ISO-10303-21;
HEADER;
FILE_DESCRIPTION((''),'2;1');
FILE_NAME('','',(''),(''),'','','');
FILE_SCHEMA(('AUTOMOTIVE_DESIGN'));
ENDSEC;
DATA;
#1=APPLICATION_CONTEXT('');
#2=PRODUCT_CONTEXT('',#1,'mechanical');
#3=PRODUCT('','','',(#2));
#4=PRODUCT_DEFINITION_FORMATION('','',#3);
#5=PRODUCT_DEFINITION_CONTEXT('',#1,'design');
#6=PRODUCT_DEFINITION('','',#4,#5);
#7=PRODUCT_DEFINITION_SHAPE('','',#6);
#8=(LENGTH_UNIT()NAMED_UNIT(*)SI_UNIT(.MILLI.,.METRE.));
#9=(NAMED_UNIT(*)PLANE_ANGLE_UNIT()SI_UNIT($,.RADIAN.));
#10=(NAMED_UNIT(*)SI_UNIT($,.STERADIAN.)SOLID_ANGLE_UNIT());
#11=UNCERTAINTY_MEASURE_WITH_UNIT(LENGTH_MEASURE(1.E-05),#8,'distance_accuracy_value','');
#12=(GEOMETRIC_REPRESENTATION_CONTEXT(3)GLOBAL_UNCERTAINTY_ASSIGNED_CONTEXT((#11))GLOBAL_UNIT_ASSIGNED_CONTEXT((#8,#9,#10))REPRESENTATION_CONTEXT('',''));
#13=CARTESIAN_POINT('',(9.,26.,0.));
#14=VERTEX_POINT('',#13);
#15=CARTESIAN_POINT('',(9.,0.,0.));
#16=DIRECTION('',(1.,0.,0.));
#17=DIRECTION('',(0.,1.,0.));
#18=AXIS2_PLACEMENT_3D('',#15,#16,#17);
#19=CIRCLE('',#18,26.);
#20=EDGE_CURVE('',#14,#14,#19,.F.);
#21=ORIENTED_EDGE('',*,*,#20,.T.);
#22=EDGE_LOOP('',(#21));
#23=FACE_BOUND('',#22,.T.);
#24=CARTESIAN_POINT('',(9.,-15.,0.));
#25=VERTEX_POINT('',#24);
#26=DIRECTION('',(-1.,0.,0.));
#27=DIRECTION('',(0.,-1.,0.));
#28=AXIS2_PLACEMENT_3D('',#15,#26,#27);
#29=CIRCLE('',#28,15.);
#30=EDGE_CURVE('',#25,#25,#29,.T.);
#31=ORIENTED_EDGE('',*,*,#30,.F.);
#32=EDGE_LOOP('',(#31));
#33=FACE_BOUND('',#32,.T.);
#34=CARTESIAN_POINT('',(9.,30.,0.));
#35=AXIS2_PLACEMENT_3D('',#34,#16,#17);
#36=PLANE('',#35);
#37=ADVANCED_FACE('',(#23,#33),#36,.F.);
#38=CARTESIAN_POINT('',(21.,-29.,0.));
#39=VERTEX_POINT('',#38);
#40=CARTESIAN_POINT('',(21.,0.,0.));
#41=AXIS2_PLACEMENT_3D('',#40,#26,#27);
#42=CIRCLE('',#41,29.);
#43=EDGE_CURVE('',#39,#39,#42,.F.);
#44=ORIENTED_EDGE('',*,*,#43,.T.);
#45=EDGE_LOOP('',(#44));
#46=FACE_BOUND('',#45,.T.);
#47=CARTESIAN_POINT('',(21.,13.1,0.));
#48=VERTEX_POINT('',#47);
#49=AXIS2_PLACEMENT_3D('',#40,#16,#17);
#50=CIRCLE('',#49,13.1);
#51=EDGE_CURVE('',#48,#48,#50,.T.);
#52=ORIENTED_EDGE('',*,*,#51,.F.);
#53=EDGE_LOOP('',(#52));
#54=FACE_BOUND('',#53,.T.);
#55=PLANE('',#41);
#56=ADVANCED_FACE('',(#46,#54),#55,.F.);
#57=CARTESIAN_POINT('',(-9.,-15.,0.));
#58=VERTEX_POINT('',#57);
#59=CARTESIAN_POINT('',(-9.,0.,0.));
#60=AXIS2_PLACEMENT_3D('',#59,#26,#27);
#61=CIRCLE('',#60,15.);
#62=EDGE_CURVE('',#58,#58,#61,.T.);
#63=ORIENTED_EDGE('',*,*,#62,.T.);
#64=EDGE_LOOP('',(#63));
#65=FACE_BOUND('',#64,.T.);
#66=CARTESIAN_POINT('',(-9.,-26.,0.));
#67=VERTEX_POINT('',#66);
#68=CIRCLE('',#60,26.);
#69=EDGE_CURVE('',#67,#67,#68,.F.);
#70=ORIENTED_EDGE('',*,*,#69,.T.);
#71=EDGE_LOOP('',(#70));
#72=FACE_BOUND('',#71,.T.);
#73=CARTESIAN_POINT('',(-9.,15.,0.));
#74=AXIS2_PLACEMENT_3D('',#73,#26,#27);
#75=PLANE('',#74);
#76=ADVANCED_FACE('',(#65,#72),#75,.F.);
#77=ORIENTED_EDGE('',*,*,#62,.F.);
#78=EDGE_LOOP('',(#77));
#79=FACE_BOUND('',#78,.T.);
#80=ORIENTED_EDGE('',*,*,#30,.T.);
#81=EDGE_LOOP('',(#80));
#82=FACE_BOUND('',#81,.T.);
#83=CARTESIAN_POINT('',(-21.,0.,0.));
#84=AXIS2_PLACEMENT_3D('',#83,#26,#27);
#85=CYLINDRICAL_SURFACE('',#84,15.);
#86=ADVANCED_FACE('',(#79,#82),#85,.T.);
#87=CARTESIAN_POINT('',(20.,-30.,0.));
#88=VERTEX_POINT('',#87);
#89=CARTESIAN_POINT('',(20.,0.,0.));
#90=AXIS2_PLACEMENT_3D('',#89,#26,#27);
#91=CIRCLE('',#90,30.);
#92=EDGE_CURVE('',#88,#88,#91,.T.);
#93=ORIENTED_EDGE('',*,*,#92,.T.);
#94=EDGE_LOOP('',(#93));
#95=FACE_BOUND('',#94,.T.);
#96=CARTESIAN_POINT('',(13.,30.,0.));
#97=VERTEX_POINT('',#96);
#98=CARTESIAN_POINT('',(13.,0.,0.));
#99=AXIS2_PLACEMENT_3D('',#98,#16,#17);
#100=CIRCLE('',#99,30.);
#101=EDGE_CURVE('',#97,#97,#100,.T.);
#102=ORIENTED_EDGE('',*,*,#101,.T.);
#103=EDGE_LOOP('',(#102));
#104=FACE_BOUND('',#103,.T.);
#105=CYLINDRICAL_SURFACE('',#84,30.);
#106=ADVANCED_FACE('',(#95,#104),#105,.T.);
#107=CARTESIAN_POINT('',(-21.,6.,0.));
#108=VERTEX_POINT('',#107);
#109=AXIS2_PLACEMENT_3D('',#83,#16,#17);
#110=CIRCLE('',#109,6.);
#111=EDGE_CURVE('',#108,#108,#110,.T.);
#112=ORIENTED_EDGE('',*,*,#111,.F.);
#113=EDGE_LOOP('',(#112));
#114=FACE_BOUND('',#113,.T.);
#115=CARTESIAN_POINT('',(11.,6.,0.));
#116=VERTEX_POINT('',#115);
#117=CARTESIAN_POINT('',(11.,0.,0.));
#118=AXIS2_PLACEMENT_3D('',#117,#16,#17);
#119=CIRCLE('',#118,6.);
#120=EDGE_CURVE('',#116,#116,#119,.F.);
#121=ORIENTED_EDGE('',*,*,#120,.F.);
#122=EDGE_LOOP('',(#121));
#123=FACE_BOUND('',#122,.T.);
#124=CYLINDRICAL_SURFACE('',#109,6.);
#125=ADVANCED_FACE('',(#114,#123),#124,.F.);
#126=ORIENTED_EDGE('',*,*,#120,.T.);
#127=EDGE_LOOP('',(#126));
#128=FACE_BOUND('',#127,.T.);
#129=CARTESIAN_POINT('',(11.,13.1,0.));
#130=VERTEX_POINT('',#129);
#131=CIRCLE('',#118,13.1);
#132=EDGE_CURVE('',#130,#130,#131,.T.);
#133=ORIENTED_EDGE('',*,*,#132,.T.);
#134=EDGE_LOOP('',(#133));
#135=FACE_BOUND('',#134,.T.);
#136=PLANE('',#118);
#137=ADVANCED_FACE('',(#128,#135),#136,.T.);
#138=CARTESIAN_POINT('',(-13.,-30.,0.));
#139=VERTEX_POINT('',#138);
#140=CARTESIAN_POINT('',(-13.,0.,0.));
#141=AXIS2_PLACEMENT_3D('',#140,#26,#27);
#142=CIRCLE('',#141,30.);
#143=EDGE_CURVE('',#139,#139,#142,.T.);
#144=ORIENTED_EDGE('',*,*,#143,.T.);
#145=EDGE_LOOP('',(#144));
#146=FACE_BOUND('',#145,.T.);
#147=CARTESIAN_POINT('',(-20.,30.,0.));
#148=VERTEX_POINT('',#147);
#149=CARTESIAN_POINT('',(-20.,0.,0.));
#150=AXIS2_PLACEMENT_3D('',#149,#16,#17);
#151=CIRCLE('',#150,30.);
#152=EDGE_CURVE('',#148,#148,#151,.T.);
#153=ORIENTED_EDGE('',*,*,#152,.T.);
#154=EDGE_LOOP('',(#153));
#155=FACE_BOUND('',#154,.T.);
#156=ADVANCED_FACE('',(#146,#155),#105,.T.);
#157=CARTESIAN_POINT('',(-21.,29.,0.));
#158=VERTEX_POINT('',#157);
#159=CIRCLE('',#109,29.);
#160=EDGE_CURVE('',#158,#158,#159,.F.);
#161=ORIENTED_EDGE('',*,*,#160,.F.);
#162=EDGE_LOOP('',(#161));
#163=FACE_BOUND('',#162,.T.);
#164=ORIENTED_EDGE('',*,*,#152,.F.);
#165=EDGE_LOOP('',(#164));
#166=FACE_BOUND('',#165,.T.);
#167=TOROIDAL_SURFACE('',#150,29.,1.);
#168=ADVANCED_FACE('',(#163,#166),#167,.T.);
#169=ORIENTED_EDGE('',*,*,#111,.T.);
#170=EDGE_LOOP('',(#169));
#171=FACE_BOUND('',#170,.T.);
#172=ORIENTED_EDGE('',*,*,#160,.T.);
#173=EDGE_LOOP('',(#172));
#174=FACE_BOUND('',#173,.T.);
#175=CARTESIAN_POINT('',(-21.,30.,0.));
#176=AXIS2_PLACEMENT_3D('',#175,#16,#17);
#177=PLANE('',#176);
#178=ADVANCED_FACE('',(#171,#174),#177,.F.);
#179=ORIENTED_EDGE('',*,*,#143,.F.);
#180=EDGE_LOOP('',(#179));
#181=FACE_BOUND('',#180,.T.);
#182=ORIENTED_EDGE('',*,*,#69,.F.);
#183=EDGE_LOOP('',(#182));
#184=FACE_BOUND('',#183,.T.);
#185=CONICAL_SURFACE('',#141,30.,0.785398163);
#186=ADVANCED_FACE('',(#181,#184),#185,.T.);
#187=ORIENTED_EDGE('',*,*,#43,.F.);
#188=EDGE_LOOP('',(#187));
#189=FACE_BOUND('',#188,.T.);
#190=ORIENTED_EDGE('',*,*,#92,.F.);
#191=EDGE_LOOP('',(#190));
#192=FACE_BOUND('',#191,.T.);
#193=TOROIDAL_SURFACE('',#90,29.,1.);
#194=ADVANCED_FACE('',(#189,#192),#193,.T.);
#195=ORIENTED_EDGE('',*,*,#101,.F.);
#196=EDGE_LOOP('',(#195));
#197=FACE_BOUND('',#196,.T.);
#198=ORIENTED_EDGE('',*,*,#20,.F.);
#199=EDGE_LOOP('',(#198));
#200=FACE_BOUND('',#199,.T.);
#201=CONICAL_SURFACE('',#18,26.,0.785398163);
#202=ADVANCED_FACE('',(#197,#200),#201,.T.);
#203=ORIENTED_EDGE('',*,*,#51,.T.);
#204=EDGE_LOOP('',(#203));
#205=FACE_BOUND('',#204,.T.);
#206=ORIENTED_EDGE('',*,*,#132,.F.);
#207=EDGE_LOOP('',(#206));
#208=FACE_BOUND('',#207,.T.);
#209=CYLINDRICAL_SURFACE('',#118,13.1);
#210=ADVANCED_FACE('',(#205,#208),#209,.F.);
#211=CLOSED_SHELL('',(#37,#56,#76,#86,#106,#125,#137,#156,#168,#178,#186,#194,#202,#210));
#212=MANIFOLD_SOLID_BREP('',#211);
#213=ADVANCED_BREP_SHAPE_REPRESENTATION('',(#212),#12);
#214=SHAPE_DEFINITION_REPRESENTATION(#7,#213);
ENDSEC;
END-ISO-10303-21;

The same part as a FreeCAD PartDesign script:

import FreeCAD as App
import Part
import Sketcher


def edges_at(feature, points):
    """Names of the edges that pass closest to the given points."""
    edges = feature.Shape.Edges
    near = lambda p: min(range(len(edges)), key=lambda i: edges[i].distToShape(Part.Vertex(*p))[0])
    return sorted({f"Edge{near(p) + 1}" for p in points})

doc = App.newDocument("Part")
params = doc.addObject("Spreadsheet::Sheet", "Params")
for row, (alias, value) in enumerate([
    ("sketch1_width", "42 mm"),
    ("sketch1_width2", "12 mm"),
    ("sketch1_height", "30 mm"),
    ("sketch1_height2", "15 mm"),
    ("revolution_angle", "360 deg"),
    ("sketch2_diameter", "18 mm"),
    ("pad1_length", "10 mm"),
    ("sketch3_diameter", "12 mm"),
    ("chamfer_size", "4 mm"),
    ("fillet_radius", "1 mm"),
    ("sketch4_width", "10 mm"),
    ("sketch5_diameter", "26.2 mm"),
    ("pocket3_length", "10 mm"),
], start=1):
    params.set(f"A{row}", alias)
    params.set(f"B{row}", "=" + value)
    params.setAlias(f"B{row}", alias)

body = doc.addObject("PartDesign::Body", "Body")

# Sketch on XY plane
sketch1 = body.newObject("Sketcher::SketchObject", "Sketch")
sketch1.AttachmentSupport = (doc.getObject("XY_Plane"), [""])
sketch1.MapMode = "FlatFace"
sketch1.addGeometry(Part.LineSegment(App.Vector(-21, 0, 0), App.Vector(21, 0, 0)), False)
sketch1.addGeometry(Part.LineSegment(App.Vector(21, 0, 0), App.Vector(21, 30, 0)), False)
sketch1.addGeometry(Part.LineSegment(App.Vector(21, 30, 0), App.Vector(9, 30, 0)), False)
sketch1.addGeometry(Part.LineSegment(App.Vector(9, 30, 0), App.Vector(9, 15, 0)), False)
sketch1.addGeometry(Part.LineSegment(App.Vector(9, 15, 0), App.Vector(-9, 15, 0)), False)
sketch1.addGeometry(Part.LineSegment(App.Vector(-9, 15, 0), App.Vector(-9, 30, 0)), False)
sketch1.addGeometry(Part.LineSegment(App.Vector(-9, 30, 0), App.Vector(-21, 30, 0)), False)
sketch1.addGeometry(Part.LineSegment(App.Vector(-21, 30, 0), App.Vector(-21, 0, 0)), False)
sketch1.addConstraint(Sketcher.Constraint("Coincident", 0, 2, 1, 1))
sketch1.addConstraint(Sketcher.Constraint("Coincident", 1, 2, 2, 1))
sketch1.addConstraint(Sketcher.Constraint("Coincident", 2, 2, 3, 1))
sketch1.addConstraint(Sketcher.Constraint("Coincident", 3, 2, 4, 1))
sketch1.addConstraint(Sketcher.Constraint("Coincident", 4, 2, 5, 1))
sketch1.addConstraint(Sketcher.Constraint("Coincident", 5, 2, 6, 1))
sketch1.addConstraint(Sketcher.Constraint("Coincident", 6, 2, 7, 1))
sketch1.addConstraint(Sketcher.Constraint("Coincident", 7, 2, 0, 1))
sketch1.addConstraint(Sketcher.Constraint("Horizontal", 0))
sketch1.addConstraint(Sketcher.Constraint("Vertical", 1))
sketch1.addConstraint(Sketcher.Constraint("Horizontal", 2))
sketch1.addConstraint(Sketcher.Constraint("Vertical", 3))
sketch1.addConstraint(Sketcher.Constraint("Horizontal", 4))
sketch1.addConstraint(Sketcher.Constraint("Vertical", 5))
sketch1.addConstraint(Sketcher.Constraint("Horizontal", 6))
sketch1.addConstraint(Sketcher.Constraint("Vertical", 7))
sketch1.addConstraint(Sketcher.Constraint("Symmetric", 0, 2, 7, 2, -1, 1))
sketch1.addConstraint(Sketcher.Constraint("Symmetric", 2, 2, 5, 2, -2))
sketch1.addConstraint(Sketcher.Constraint("DistanceX", 0, 1, 0, 2, 42.0))
sketch1.addConstraint(Sketcher.Constraint("DistanceX", 2, 2, 2, 1, 12.0))
sketch1.addConstraint(Sketcher.Constraint("DistanceY", 1, 1, 1, 2, 30.0))
sketch1.addConstraint(Sketcher.Constraint("DistanceY", 3, 2, 3, 1, 15.0))
sketch1.setExpression("Constraints[18]", "Params.sketch1_width")
sketch1.setExpression("Constraints[19]", "Params.sketch1_width2")
sketch1.setExpression("Constraints[20]", "Params.sketch1_height")
sketch1.setExpression("Constraints[21]", "Params.sketch1_height2")
revolution = body.newObject("PartDesign::Revolution", "Revolution")
revolution.Profile = sketch1
revolution.ReferenceAxis = (sketch1, ["H_Axis"])
revolution.setExpression("Angle", "Params.revolution_angle")

# Sketch on YZ plane
sketch2 = body.newObject("Sketcher::SketchObject", "Sketch001")
sketch2.AttachmentSupport = (doc.getObject("YZ_Plane"), [""])
sketch2.MapMode = "FlatFace"
sketch2.AttachmentOffset = App.Placement(App.Vector(0, 0, 21), App.Rotation())
sketch2.addGeometry(Part.Circle(App.Vector(0, 0, 0), App.Vector(0, 0, 1), 9), False)
sketch2.addConstraint(Sketcher.Constraint("Coincident", 0, 3, -1, 1))
sketch2.addConstraint(Sketcher.Constraint("Diameter", 0, 18.0))
sketch2.setExpression("Constraints[1]", "Params.sketch2_diameter")
pad1 = body.newObject("PartDesign::Pad", "Pad")
pad1.Profile = sketch2
pad1.setExpression("Length", "Params.pad1_length")

# Sketch on YZ plane
sketch3 = body.newObject("Sketcher::SketchObject", "Sketch002")
sketch3.AttachmentSupport = (doc.getObject("YZ_Plane"), [""])
sketch3.MapMode = "FlatFace"
sketch3.AttachmentOffset = App.Placement(App.Vector(0, 0, 31), App.Rotation())
sketch3.addGeometry(Part.Circle(App.Vector(0, 0, 0), App.Vector(0, 0, 1), 6), False)
sketch3.addConstraint(Sketcher.Constraint("Coincident", 0, 3, -1, 1))
sketch3.addConstraint(Sketcher.Constraint("Diameter", 0, 12.0))
sketch3.setExpression("Constraints[1]", "Params.sketch3_diameter")
pocket1 = body.newObject("PartDesign::Pocket", "Pocket")
pocket1.Profile = sketch3
pocket1.Type = "ThroughAll"
doc.recompute()

chamfer = body.newObject("PartDesign::Chamfer", "Chamfer")
chamfer.Base = (pocket1, edges_at(pocket1, [(-9, -30, 0), (9, -30, 0)]))
chamfer.setExpression("Size", "Params.chamfer_size")
doc.recompute()

fillet = body.newObject("PartDesign::Fillet", "Fillet")
fillet.Base = (chamfer, edges_at(chamfer, [(-21, -30, 0), (21, -30, 0)]))
fillet.setExpression("Radius", "Params.fillet_radius")

# Sketch on XZ plane
sketch4 = body.newObject("Sketcher::SketchObject", "Sketch003")
sketch4.AttachmentSupport = (doc.getObject("XZ_Plane"), [""])
sketch4.MapMode = "FlatFace"
sketch4.addGeometry(Part.LineSegment(App.Vector(21, -11, 0), App.Vector(21, 10, 0)), False)
sketch4.addGeometry(Part.LineSegment(App.Vector(21, 10, 0), App.Vector(31, 10, 0)), False)
sketch4.addGeometry(Part.LineSegment(App.Vector(31, 10, 0), App.Vector(31, -11, 0)), False)
sketch4.addGeometry(Part.LineSegment(App.Vector(31, -11, 0), App.Vector(21, -11, 0)), False)
sketch4.addConstraint(Sketcher.Constraint("Coincident", 0, 2, 1, 1))
sketch4.addConstraint(Sketcher.Constraint("Coincident", 1, 2, 2, 1))
sketch4.addConstraint(Sketcher.Constraint("Coincident", 2, 2, 3, 1))
sketch4.addConstraint(Sketcher.Constraint("Coincident", 3, 2, 0, 1))
sketch4.addConstraint(Sketcher.Constraint("Vertical", 0))
sketch4.addConstraint(Sketcher.Constraint("Horizontal", 1))
sketch4.addConstraint(Sketcher.Constraint("Vertical", 2))
sketch4.addConstraint(Sketcher.Constraint("Horizontal", 3))
sketch4.addConstraint(Sketcher.Constraint("DistanceX", 1, 1, 1, 2, 10.0))
sketch4.addConstraint(Sketcher.Constraint("DistanceX", -1, 1, 0, 2, 21.0))
sketch4.addConstraint(Sketcher.Constraint("DistanceY", 2, 2, -1, 1, 11.0653))
sketch4.addConstraint(Sketcher.Constraint("DistanceY", 0, 1, 0, 2, 21.176664))
sketch4.setExpression("Constraints[8]", "Params.sketch4_width")
pocket2 = body.newObject("PartDesign::Pocket", "Pocket001")
pocket2.Profile = sketch4
pocket2.Type = "ThroughAll"
pocket2.Midplane = True

# Sketch on YZ plane
sketch5 = body.newObject("Sketcher::SketchObject", "Sketch004")
sketch5.AttachmentSupport = (doc.getObject("YZ_Plane"), [""])
sketch5.MapMode = "FlatFace"
sketch5.AttachmentOffset = App.Placement(App.Vector(0, 0, 21), App.Rotation())
sketch5.addGeometry(Part.Circle(App.Vector(0, 0, 0), App.Vector(0, 0, 1), 13), False)
sketch5.addConstraint(Sketcher.Constraint("Coincident", 0, 3, -1, 1))
sketch5.addConstraint(Sketcher.Constraint("Diameter", 0, 26.2))
sketch5.setExpression("Constraints[1]", "Params.sketch5_diameter")
pocket3 = body.newObject("PartDesign::Pocket", "Pocket002")
pocket3.Profile = sketch5
pocket3.setExpression("Length", "Params.pocket3_length")

doc.recompute()
